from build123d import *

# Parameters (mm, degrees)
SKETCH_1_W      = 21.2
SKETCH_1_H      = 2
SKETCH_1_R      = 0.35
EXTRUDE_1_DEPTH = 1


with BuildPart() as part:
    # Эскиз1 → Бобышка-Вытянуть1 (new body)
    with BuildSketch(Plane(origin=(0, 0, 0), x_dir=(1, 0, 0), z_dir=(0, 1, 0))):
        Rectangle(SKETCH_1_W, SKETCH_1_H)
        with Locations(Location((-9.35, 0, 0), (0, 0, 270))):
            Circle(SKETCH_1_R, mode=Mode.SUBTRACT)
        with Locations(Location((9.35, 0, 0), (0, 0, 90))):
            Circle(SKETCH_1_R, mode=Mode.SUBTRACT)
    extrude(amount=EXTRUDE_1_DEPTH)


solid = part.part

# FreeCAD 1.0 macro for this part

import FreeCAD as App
import Part
import Sketcher
from FreeCAD import Vector
Q = App.Units.Quantity


def add_polygon(sketch, points):
    """Adds a closed chain of lines whose ends are joined by coincident constraints."""
    first, n = sketch.GeometryCount, len(points)
    for a, b in zip(points, points[1:] + points[:1]):
        sketch.addGeometry(Part.LineSegment(App.Vector(*a, 0), App.Vector(*b, 0)), False)
    for i in range(n):
        sketch.addConstraint(Sketcher.Constraint("Coincident", first + i, 2, first + (i + 1) % n, 1))

doc = App.newDocument("Part")
params = doc.addObject("Spreadsheet::Sheet", "Params")
for row, (alias, value) in enumerate([
    ("sketch1_diameter", "0.7 mm"),
    ("sketch1_height", "2 mm"),
    ("sketch1_width", "21.2 mm"),
    ("pad1_length", "1 mm"),
], start=1):
    params.set(f"A{row}", alias)
    params.set(f"B{row}", "=" + value)
    params.setAlias(f"B{row}", alias)

body = doc.addObject("PartDesign::Body", "Body")

# Sketch on XZ plane
sketch1 = body.newObject("Sketcher::SketchObject", "Sketch")
sketch1.AttachmentSupport = (doc.getObject("XZ_Plane"), [""])
sketch1.MapMode = "FlatFace"
add_polygon(sketch1, [(-10.6, -1), (-10.6, 1), (10.6, 1), (10.6, -1)])  # lines 0-3
sketch1.addGeometry(Part.Circle(Vector(-9.35, 0, 0), Vector(0, 0, 1), 0.35), False)  # 4
sketch1.addGeometry(Part.Circle(Vector(9.35, 0, 0), Vector(0, 0, 1), 0.35), False)  # 5
sketch1.addConstraint([
    Sketcher.Constraint("Vertical", 0),
    Sketcher.Constraint("Horizontal", 1),
    Sketcher.Constraint("Vertical", 2),
    Sketcher.Constraint("Horizontal", 3),
    Sketcher.Constraint("Equal", 4, 5),
    Sketcher.Constraint("Symmetric", 4, 3, 5, 3, -1, 1),
    Sketcher.Constraint("Symmetric", 0, 2, 2, 2, -1, 1),
    Sketcher.Constraint("PointOnObject", 4, 3, -1),
    Sketcher.Constraint("Diameter", 4, Q("0.7 mm")),
    Sketcher.Constraint("DistanceY", 0, 1, 0, 2, Q("2 mm")),
    Sketcher.Constraint("DistanceX", 1, 1, 1, 2, Q("21.2 mm")),
    Sketcher.Constraint("DistanceX", 4, 3, 5, 3, Q("18.7 mm")),
])
sketch1.setExpression("Constraints[12]", "Params.sketch1_diameter")
sketch1.setExpression("Constraints[13]", "Params.sketch1_height")
sketch1.setExpression("Constraints[14]", "Params.sketch1_width")
pad1 = body.newObject("PartDesign::Pad", "Pad")
pad1.Profile = sketch1
pad1.setExpression("Length", "Params.pad1_length")
pad1.Reversed = True

doc.recompute()
